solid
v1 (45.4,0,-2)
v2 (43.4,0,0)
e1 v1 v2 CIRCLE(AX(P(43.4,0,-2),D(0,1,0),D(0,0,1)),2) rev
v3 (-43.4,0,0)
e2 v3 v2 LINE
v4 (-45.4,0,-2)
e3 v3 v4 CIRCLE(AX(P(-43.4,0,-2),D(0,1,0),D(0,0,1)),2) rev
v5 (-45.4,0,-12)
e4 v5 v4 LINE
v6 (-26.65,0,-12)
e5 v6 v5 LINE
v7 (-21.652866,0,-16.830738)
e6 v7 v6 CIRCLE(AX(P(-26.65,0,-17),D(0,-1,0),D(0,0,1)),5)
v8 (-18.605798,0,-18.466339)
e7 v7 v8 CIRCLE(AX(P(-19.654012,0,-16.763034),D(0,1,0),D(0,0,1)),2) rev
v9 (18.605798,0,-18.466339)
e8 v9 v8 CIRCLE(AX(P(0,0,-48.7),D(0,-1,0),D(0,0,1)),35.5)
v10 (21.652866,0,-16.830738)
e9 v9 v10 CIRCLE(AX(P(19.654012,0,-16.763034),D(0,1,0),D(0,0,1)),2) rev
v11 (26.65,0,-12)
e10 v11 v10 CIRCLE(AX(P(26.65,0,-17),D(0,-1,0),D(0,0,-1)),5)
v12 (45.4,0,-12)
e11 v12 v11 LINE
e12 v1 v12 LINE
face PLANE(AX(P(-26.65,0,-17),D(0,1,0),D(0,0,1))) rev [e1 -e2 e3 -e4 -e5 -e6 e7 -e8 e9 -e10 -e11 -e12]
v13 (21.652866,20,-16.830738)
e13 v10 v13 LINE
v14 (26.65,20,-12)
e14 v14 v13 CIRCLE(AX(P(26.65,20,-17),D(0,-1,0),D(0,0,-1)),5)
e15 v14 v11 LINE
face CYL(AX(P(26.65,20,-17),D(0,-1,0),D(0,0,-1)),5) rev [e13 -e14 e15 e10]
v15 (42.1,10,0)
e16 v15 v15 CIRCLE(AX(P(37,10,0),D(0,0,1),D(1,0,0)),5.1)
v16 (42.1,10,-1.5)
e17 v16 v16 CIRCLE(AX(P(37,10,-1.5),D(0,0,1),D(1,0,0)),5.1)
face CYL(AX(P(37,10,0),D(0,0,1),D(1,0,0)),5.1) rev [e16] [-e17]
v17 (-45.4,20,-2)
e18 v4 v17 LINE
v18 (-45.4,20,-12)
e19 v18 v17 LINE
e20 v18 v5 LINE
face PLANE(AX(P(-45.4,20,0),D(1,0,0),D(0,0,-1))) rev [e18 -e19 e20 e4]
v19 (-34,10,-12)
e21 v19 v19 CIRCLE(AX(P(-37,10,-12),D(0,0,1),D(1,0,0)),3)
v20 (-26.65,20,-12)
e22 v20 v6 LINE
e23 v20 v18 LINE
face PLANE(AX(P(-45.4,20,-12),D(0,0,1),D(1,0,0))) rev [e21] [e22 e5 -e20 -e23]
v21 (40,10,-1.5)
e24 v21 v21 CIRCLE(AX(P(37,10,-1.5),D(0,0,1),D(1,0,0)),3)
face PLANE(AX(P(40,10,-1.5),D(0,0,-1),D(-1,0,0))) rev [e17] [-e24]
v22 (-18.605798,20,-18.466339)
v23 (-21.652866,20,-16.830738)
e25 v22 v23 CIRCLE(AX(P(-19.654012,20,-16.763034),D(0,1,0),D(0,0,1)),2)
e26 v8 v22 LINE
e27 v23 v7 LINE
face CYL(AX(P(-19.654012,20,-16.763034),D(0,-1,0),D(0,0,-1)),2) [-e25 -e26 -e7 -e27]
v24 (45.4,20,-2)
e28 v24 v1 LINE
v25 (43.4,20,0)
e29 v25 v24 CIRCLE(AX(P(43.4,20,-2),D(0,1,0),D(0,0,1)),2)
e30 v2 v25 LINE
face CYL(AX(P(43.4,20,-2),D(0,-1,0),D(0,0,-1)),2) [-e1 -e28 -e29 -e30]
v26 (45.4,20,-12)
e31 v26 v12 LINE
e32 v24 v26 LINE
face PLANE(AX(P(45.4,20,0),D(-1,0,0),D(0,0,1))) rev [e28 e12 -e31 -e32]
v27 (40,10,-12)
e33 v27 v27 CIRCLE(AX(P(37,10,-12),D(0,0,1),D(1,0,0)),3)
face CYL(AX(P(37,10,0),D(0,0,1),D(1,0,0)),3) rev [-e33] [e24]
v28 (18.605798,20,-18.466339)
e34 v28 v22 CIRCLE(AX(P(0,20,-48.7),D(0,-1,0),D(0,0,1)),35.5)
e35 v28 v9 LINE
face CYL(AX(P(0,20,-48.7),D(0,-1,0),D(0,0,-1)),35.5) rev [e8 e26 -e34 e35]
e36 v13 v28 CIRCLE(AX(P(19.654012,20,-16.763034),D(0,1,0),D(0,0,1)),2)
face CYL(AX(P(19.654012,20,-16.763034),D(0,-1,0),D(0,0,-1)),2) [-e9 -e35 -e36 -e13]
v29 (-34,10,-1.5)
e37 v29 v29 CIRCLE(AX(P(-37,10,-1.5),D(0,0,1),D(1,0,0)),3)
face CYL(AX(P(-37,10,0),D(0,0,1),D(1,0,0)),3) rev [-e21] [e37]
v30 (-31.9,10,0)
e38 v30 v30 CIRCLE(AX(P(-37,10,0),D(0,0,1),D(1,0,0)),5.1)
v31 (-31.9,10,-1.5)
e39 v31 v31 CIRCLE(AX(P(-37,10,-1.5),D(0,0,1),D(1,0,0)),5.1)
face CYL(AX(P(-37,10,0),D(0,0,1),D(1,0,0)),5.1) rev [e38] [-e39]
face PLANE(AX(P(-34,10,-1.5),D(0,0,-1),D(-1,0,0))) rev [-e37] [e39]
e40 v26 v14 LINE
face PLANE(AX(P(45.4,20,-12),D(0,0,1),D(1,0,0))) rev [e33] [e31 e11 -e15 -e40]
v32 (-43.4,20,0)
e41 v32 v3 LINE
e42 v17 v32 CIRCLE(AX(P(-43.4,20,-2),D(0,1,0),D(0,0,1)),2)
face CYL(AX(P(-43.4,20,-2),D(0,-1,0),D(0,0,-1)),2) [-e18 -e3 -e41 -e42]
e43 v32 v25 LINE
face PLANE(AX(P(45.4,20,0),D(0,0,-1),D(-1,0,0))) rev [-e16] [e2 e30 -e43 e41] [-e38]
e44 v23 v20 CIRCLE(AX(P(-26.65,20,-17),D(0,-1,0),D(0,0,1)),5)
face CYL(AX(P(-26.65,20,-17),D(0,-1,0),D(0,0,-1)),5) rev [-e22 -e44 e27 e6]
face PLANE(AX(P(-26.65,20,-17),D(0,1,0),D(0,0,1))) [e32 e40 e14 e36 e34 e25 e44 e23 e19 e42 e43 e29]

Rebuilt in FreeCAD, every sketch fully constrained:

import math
import FreeCAD as App
import Part
import Sketcher
from FreeCAD import Vector


def edges_at(feature, points):
    """Names of the edges that pass closest to the given points."""
    edges = feature.Shape.Edges
    near = lambda p: min(range(len(edges)), key=lambda i: edges[i].distToShape(Part.Vertex(*p))[0])
    return sorted({f"Edge{near(p) + 1}" for p in points})

doc = App.newDocument("Part")
body = doc.addObject("PartDesign::Body", "Body")

# Sketch on XZ plane
sketch1 = body.newObject("Sketcher::SketchObject", "Sketch")
sketch1.AttachmentSupport = (doc.getObject("XZ_Plane"), [""])
sketch1.MapMode = "FlatFace"
sketch1.addGeometry([
    Part.LineSegment(Vector(-45.4, 0, 0), Vector(45.4, 0, 0)),  # 0
    Part.LineSegment(Vector(45.4, 0, 0), Vector(45.4, -12, 0)),  # 1
    Part.LineSegment(Vector(45.4, -12, 0), Vector(26.6, -12, 0)),  # 2
    Part.ArcOfCircle(Part.Circle(Vector(26.6, -17, 0), Vector(0, 0, 1), 5), math.radians(90), math.radians(180)),  # 3
    Part.LineSegment(Vector(21.6, -17, 0), Vector(21.6, -20.6, 0)),  # 4
    Part.ArcOfCircle(Part.Circle(Vector(0, -48.7, 0), Vector(0, 0, 1), 35.5), math.radians(52), math.radians(128)),  # 5
    Part.LineSegment(Vector(-21.6, -20.6, 0), Vector(-21.6, -17, 0)),  # 6
    Part.ArcOfCircle(Part.Circle(Vector(-26.6, -17, 0), Vector(0, 0, 1), 5), math.radians(0), math.radians(90)),  # 7
    Part.LineSegment(Vector(-26.6, -12, 0), Vector(-45.4, -12, 0)),  # 8
    Part.LineSegment(Vector(-45.4, -12, 0), Vector(-45.4, 0, 0)),  # 9
], False)
sketch1.addConstraint([
    Sketcher.Constraint("Coincident", 0, 2, 1, 1),
    Sketcher.Constraint("Coincident", 1, 2, 2, 1),
    Sketcher.Constraint("Tangent", 2, 2, 3, 1),
    Sketcher.Constraint("Tangent", 3, 2, 4, 1),
    Sketcher.Constraint("Coincident", 4, 2, 5, 1),
    Sketcher.Constraint("Coincident", 5, 2, 6, 1),
    Sketcher.Constraint("Tangent", 6, 2, 7, 1),
    Sketcher.Constraint("Tangent", 7, 2, 8, 1),
    Sketcher.Constraint("Coincident", 8, 2, 9, 1),
    Sketcher.Constraint("Coincident", 9, 2, 0, 1),
    Sketcher.Constraint("Horizontal", 0),
    Sketcher.Constraint("Vertical", 1),
    Sketcher.Constraint("Horizontal", 2),
    Sketcher.Constraint("Vertical", 4),
    Sketcher.Constraint("Vertical", 6),
    Sketcher.Constraint("Horizontal", 8),
    Sketcher.Constraint("Vertical", 9),
    Sketcher.Constraint("Equal", 3, 7),
    Sketcher.Constraint("Symmetric", 0, 2, 9, 2, -1, 1),
    Sketcher.Constraint("Symmetric", 3, 3, 7, 3, -2),
    Sketcher.Constraint("PointOnObject", 5, 3, -2),
    Sketcher.Constraint("Radius", 3, 5.0),
    Sketcher.Constraint("Radius", 5, 35.5),
    Sketcher.Constraint("DistanceY", 1, 2, 1, 1, 12.0),
    Sketcher.Constraint("DistanceX", 0, 1, 0, 2, 90.8),
    Sketcher.Constraint("DistanceX", 2, 2, 2, 1, 18.75),
    Sketcher.Constraint("DistanceY", 5, 3, -1, 1, 48.7),
])
pad1 = body.newObject("PartDesign::Pad", "Pad")
pad1.Profile = sketch1
pad1.Length = 20
pad1.Reversed = True
doc.recompute()

fillet = body.newObject("PartDesign::Fillet", "Fillet")
fillet.Base = (pad1, edges_at(pad1, [(21.65, 10, -20.566), (-21.65, 10, -20.566)]))
fillet.Radius = 2

# Sketch on XY plane
sketch2 = body.newObject("Sketcher::SketchObject", "Sketch001")
sketch2.AttachmentSupport = (doc.getObject("XY_Plane"), [""])
sketch2.MapMode = "FlatFace"
sketch2.addGeometry([
    Part.Circle(Vector(-37, 10, 0), Vector(0, 0, 1), 3),
    Part.Circle(Vector(37, 10, 0), Vector(0, 0, 1), 3),
], False)
sketch2.addConstraint([
    Sketcher.Constraint("Equal", 0, 1),
    Sketcher.Constraint("Symmetric", 0, 3, 1, 3, -2),
    Sketcher.Constraint("Diameter", 0, 6.0),
    Sketcher.Constraint("DistanceX", 0, 3, -1, 1, 37.0),
    Sketcher.Constraint("DistanceY", -1, 1, 0, 3, 10.0),
])
doc.recompute()
hole = body.newObject("PartDesign::Hole", "Hole")
hole.Profile = sketch2
hole.ThreadType = "None"
hole.Diameter = 6
hole.DepthType = "Dimension"
hole.Depth = 20.26
hole.DrillPoint = "Angled"
hole.DrillPointAngle = 118
hole.HoleCutType = "Counterbore"
hole.HoleCutDiameter = 10.2
hole.HoleCutDepth = 1.5
doc.recompute()

fillet2 = body.newObject("PartDesign::Fillet", "Fillet001")
fillet2.Base = (hole, edges_at(hole, [(45.4, 10, 0), (-45.4, 10, 0)]))
fillet2.Radius = 2

doc.recompute()
